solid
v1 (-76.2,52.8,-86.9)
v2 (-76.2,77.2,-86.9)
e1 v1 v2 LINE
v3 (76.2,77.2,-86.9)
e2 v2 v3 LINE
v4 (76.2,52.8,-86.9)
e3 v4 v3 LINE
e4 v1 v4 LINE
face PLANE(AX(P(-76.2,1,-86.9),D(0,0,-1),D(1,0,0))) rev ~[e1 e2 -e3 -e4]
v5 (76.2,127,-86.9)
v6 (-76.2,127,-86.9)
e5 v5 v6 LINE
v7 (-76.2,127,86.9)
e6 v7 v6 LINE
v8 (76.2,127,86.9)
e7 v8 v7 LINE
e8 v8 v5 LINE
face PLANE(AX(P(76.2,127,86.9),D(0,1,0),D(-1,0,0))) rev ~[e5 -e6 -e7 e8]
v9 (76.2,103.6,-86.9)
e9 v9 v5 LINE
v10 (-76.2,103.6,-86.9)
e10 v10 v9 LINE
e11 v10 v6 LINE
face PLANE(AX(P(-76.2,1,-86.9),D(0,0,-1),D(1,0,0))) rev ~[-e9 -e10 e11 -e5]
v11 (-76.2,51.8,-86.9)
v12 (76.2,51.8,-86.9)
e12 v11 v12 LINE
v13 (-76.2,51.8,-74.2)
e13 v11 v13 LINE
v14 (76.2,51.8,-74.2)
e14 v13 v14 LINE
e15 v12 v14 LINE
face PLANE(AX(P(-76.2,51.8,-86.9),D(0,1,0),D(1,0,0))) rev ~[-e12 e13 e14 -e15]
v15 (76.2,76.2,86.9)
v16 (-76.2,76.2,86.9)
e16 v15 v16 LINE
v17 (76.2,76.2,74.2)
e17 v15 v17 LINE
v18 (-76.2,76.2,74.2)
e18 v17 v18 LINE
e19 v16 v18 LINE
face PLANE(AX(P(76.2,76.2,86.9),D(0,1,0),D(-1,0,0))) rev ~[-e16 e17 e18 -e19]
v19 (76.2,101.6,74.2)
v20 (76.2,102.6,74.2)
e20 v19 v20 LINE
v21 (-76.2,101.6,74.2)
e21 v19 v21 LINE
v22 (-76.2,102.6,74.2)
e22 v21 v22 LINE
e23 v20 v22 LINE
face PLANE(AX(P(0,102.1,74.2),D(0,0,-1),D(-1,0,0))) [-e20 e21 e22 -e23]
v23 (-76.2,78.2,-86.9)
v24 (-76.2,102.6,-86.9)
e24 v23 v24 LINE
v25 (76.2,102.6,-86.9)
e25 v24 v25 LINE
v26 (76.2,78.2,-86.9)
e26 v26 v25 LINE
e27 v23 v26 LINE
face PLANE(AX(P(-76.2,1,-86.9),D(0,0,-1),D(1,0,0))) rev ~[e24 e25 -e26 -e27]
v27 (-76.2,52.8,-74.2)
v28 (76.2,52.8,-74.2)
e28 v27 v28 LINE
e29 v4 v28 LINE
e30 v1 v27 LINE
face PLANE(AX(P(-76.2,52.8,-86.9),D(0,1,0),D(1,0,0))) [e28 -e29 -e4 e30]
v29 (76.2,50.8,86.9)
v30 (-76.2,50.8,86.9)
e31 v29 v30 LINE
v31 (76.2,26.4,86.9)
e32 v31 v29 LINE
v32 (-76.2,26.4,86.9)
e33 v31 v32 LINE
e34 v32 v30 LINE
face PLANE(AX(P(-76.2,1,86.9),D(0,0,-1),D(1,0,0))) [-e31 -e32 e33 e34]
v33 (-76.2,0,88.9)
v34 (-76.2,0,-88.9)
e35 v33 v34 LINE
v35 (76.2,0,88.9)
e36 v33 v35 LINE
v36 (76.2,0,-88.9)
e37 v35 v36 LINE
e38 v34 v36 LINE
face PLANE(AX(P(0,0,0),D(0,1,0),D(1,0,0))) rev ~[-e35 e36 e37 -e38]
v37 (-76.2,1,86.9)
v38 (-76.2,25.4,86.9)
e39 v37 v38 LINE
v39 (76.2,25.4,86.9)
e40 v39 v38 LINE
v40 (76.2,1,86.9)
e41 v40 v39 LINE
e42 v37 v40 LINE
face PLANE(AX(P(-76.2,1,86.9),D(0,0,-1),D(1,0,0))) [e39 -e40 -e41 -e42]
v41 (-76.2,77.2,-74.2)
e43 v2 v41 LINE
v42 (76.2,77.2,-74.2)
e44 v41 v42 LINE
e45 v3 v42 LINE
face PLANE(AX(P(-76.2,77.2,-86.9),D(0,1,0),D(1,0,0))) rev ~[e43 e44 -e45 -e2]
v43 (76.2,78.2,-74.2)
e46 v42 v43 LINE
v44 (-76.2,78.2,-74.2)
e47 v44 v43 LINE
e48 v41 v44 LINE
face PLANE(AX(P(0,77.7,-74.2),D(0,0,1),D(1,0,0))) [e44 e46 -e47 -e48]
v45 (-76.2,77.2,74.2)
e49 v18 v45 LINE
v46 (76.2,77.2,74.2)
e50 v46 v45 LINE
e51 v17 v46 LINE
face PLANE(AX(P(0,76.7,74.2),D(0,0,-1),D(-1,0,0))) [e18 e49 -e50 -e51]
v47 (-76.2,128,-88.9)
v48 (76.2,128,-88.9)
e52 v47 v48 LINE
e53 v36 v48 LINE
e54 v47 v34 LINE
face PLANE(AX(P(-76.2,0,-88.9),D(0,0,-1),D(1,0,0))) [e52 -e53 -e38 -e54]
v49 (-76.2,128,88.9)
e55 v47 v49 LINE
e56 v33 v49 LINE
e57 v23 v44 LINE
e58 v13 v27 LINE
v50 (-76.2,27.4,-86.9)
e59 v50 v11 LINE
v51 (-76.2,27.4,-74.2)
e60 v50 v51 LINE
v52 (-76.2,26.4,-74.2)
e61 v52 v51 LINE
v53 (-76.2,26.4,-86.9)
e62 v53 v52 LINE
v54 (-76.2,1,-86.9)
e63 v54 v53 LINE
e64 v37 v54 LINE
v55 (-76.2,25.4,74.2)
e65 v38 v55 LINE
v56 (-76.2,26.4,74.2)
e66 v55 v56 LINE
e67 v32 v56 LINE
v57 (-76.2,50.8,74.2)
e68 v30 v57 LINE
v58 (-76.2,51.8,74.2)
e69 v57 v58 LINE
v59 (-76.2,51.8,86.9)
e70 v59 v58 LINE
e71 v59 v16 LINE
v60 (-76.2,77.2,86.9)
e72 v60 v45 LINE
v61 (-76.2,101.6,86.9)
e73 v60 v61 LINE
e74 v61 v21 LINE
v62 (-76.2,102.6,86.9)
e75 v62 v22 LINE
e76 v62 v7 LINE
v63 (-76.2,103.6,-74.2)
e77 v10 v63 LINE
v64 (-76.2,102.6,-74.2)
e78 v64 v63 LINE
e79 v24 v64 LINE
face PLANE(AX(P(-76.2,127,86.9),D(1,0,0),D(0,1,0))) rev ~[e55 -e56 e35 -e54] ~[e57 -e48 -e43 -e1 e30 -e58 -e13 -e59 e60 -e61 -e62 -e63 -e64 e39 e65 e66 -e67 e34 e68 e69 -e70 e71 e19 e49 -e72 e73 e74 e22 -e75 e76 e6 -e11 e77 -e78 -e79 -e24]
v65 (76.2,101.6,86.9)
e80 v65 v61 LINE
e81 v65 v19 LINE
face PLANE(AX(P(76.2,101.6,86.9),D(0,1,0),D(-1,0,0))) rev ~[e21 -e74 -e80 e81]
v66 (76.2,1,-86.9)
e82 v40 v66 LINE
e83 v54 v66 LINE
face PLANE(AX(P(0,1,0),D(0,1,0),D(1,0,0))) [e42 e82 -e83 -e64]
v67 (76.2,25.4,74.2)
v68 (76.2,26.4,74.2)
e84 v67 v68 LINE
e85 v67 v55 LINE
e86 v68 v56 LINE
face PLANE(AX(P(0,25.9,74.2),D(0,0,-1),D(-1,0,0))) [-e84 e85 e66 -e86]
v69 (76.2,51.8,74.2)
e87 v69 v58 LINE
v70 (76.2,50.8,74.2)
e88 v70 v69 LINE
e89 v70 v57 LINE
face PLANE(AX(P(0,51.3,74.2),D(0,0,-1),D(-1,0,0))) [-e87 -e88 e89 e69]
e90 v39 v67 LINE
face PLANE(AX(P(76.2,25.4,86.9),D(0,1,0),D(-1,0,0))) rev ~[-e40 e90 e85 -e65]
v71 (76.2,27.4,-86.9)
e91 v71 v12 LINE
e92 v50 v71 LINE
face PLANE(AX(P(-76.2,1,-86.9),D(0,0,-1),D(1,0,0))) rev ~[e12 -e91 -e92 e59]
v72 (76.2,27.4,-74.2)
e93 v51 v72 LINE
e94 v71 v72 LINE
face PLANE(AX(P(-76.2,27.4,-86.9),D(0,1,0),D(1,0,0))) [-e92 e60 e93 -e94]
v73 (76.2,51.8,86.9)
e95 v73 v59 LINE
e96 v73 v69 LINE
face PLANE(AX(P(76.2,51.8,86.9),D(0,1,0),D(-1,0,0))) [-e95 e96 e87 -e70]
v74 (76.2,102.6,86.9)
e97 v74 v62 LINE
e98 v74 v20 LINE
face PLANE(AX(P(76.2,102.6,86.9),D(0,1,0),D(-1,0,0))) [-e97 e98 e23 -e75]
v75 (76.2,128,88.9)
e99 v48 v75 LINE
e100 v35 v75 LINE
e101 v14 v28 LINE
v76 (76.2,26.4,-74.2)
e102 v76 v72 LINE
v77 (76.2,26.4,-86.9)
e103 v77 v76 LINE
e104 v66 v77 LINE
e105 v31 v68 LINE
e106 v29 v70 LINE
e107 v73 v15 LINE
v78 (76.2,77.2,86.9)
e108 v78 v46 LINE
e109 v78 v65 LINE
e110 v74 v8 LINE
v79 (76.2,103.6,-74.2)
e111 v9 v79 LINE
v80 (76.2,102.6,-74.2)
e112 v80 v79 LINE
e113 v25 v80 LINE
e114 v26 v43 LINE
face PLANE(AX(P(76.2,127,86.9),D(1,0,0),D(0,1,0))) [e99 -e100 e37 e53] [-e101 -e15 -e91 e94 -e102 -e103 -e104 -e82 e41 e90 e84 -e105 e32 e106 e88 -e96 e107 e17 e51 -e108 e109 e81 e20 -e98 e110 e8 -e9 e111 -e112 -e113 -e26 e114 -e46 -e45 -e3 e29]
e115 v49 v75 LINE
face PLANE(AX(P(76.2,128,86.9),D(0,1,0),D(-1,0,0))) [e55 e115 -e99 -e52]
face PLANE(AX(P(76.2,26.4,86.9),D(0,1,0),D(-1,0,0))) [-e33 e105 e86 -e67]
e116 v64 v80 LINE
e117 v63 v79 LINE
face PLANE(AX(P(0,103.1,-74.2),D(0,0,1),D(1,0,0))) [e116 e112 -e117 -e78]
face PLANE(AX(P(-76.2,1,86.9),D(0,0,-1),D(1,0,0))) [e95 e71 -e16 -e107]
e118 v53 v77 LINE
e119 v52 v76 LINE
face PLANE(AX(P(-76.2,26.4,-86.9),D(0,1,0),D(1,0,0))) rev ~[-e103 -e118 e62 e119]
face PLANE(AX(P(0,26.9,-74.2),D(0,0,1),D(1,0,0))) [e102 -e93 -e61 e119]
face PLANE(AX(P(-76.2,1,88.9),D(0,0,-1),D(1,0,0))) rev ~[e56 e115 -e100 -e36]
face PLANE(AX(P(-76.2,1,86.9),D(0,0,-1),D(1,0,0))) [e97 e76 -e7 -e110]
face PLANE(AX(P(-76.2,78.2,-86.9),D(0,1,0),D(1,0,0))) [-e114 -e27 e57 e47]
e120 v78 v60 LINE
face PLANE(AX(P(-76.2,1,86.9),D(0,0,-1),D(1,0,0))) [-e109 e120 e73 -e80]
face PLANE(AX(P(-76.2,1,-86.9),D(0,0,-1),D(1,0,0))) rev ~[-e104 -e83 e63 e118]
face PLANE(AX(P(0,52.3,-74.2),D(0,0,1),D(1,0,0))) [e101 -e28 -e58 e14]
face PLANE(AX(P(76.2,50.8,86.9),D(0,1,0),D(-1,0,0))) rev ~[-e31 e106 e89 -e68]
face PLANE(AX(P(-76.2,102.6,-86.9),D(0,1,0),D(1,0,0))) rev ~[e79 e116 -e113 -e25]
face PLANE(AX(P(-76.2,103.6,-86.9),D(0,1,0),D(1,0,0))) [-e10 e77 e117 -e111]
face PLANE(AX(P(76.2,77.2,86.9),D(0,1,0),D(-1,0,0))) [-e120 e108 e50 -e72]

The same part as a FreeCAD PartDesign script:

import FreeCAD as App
import Part
import Sketcher
Q = App.Units.Quantity


def add_polygon(sketch, points):
    """Adds a closed chain of lines whose ends are joined by coincident constraints."""
    first, n = sketch.GeometryCount, len(points)
    for a, b in zip(points, points[1:] + points[:1]):
        sketch.addGeometry(Part.LineSegment(App.Vector(*a, 0), App.Vector(*b, 0)), False)
    for i in range(n):
        sketch.addConstraint(Sketcher.Constraint("Coincident", first + i, 2, first + (i + 1) % n, 1))

doc = App.newDocument("Part")
body = doc.addObject("PartDesign::Body", "Body")

sketch1 = doc.addObject("Sketcher::SketchObject", "Sketch")
body.addObject(sketch1)
sketch1.AttachmentSupport = (doc.XZ_Plane, [""])
sketch1.MapMode = "FlatFace"
add_polygon(sketch1, [(-76.2, -88.9), (-76.2, 88.9), (76.2, 88.9), (76.2, -88.9)])
sketch1.addConstraint(Sketcher.Constraint("Vertical", 0))
sketch1.addConstraint(Sketcher.Constraint("Horizontal", 1))
sketch1.addConstraint(Sketcher.Constraint("Vertical", 2))
sketch1.addConstraint(Sketcher.Constraint("Horizontal", 3))
sketch1.addConstraint(Sketcher.Constraint("Symmetric", 0, 2, 2, 2, -1, 1))
sketch1.addConstraint(Sketcher.Constraint("DistanceX", 1, 1, 1, 2, Q("6 in")))
sketch1.addConstraint(Sketcher.Constraint("DistanceY", 0, 1, 0, 2, Q("7 in")))
pad1 = doc.addObject("PartDesign::Pad", "Pad")
body.addObject(pad1)
pad1.Profile = sketch1
pad1.Length = 1
pad1.Reversed = True

sketch2 = doc.addObject("Sketcher::SketchObject", "Sketch001")
body.addObject(sketch2)
sketch2.AttachmentSupport = (doc.XZ_Plane, [""])
sketch2.MapMode = "FlatFace"
sketch2.AttachmentOffset = App.Placement(App.Vector(0, 0, -1), App.Rotation())
add_polygon(sketch2, [(-76.2, 86.9), (-76.2, 88.9), (76.2, 88.9), (76.2, 86.9)])
add_polygon(sketch2, [(-76.2, -88.9), (-76.2, -86.9), (76.2, -86.9), (76.2, -88.9)])
sketch2.addConstraint(Sketcher.Constraint("Vertical", 0))
sketch2.addConstraint(Sketcher.Constraint("Horizontal", 1))
sketch2.addConstraint(Sketcher.Constraint("Vertical", 2))
sketch2.addConstraint(Sketcher.Constraint("Horizontal", 3))
sketch2.addConstraint(Sketcher.Constraint("Vertical", 4))
sketch2.addConstraint(Sketcher.Constraint("Horizontal", 5))
sketch2.addConstraint(Sketcher.Constraint("Vertical", 6))
sketch2.addConstraint(Sketcher.Constraint("Horizontal", 7))
sketch2.addConstraint(Sketcher.Constraint("Symmetric", 2, 2, 4, 2, -1, 1))
sketch2.addConstraint(Sketcher.Constraint("Symmetric", 0, 2, 6, 2, -1, 1))
sketch2.addConstraint(Sketcher.Constraint("Vertical", 3, 2, 4, 2))
sketch2.addConstraint(Sketcher.Constraint("DistanceX", 1, 1, 1, 2, Q("6 in")))
sketch2.addConstraint(Sketcher.Constraint("DistanceY", 6, 2, 1, 2, Q("7 in")))
sketch2.addConstraint(Sketcher.Constraint("DistanceY", 0, 1, 0, 2, 2.0))
pad2 = doc.addObject("PartDesign::Pad", "Pad001")
body.addObject(pad2)
pad2.Profile = sketch2
pad2.Length = Q("5 in")
pad2.Reversed = True

sketch3 = doc.addObject("Sketcher::SketchObject", "Sketch002")
body.addObject(sketch3)
sketch3.AttachmentSupport = (doc.XY_Plane, [""])
sketch3.MapMode = "FlatFace"
sketch3.AttachmentOffset = App.Placement(App.Vector(0, 0, 86.9), App.Rotation())
add_polygon(sketch3, [(76.2, 26.4), (76.2, 25.4), (-76.2, 25.4), (-76.2, 26.4)])
add_polygon(sketch3, [(76.2, 51.8), (76.2, 50.8), (-76.2, 50.8), (-76.2, 51.8)])
add_polygon(sketch3, [(76.2, 77.2), (76.2, 76.2), (-76.2, 76.2), (-76.2, 77.2)])
add_polygon(sketch3, [(76.2, 102.6), (76.2, 101.6), (-76.2, 101.6), (-76.2, 102.6)])
sketch3.addConstraint(Sketcher.Constraint("Vertical", 0))
sketch3.addConstraint(Sketcher.Constraint("Horizontal", 1))
sketch3.addConstraint(Sketcher.Constraint("Vertical", 2))
sketch3.addConstraint(Sketcher.Constraint("Horizontal", 3))
sketch3.addConstraint(Sketcher.Constraint("Vertical", 4))
sketch3.addConstraint(Sketcher.Constraint("Horizontal", 5))
sketch3.addConstraint(Sketcher.Constraint("Vertical", 6))
sketch3.addConstraint(Sketcher.Constraint("Horizontal", 7))
sketch3.addConstraint(Sketcher.Constraint("Vertical", 8))
sketch3.addConstraint(Sketcher.Constraint("Horizontal", 9))
sketch3.addConstraint(Sketcher.Constraint("Vertical", 10))
sketch3.addConstraint(Sketcher.Constraint("Horizontal", 11))
sketch3.addConstraint(Sketcher.Constraint("Vertical", 12))
sketch3.addConstraint(Sketcher.Constraint("Horizontal", 13))
sketch3.addConstraint(Sketcher.Constraint("Vertical", 14))
sketch3.addConstraint(Sketcher.Constraint("Horizontal", 15))
sketch3.addConstraint(Sketcher.Constraint("Vertical", 3, 2, 4, 2))
sketch3.addConstraint(Sketcher.Constraint("Vertical", 2, 2, 5, 2))
sketch3.addConstraint(Sketcher.Constraint("Vertical", 7, 2, 8, 2))
sketch3.addConstraint(Sketcher.Constraint("Vertical", 6, 2, 9, 2))
sketch3.addConstraint(Sketcher.Constraint("Vertical", 11, 2, 12, 2))
sketch3.addConstraint(Sketcher.Constraint("Vertical", 10, 2, 13, 2))
sketch3.addConstraint(Sketcher.Constraint("Equal", 2, 4))
sketch3.addConstraint(Sketcher.Constraint("Equal", 6, 8))
sketch3.addConstraint(Sketcher.Constraint("Equal", 10, 12))
sketch3.addConstraint(Sketcher.Constraint("DistanceX", 1, 2, 1, 1, Q("6 in")))
sketch3.addConstraint(Sketcher.Constraint("DistanceX", -1, 1, 0, 2, Q("3 in")))
sketch3.addConstraint(Sketcher.Constraint("DistanceY", -1, 1, 0, 2, Q("1 in")))
sketch3.addConstraint(Sketcher.Constraint("DistanceY", -1, 1, 4, 2, Q("2 in")))
sketch3.addConstraint(Sketcher.Constraint("DistanceY", -1, 1, 8, 2, Q("3 in")))
sketch3.addConstraint(Sketcher.Constraint("DistanceY", -1, 1, 12, 2, Q("4 in")))
sketch3.addConstraint(Sketcher.Constraint("DistanceY", 0, 2, 0, 1, 1.0))
pad3 = doc.addObject("PartDesign::Pad", "Pad002")
body.addObject(pad3)
pad3.Profile = sketch3
pad3.Length = Q("0.5 in")
pad3.Reversed = True

sketch4 = doc.addObject("Sketcher::SketchObject", "Sketch003")
body.addObject(sketch4)
sketch4.AttachmentSupport = (doc.XY_Plane, [""])
sketch4.MapMode = "FlatFace"
sketch4.AttachmentOffset = App.Placement(App.Vector(0, 0, -86.9), App.Rotation())
add_polygon(sketch4, [(-76.2, 27.4), (-76.2, 26.4), (76.2, 26.4), (76.2, 27.4)])
add_polygon(sketch4, [(-76.2, 52.8), (-76.2, 51.8), (76.2, 51.8), (76.2, 52.8)])
add_polygon(sketch4, [(-76.2, 78.2), (-76.2, 77.2), (76.2, 77.2), (76.2, 78.2)])
add_polygon(sketch4, [(-76.2, 103.6), (-76.2, 102.6), (76.2, 102.6), (76.2, 103.6)])
sketch4.addConstraint(Sketcher.Constraint("Vertical", 0))
sketch4.addConstraint(Sketcher.Constraint("Horizontal", 1))
sketch4.addConstraint(Sketcher.Constraint("Vertical", 2))
sketch4.addConstraint(Sketcher.Constraint("Horizontal", 3))
sketch4.addConstraint(Sketcher.Constraint("Vertical", 4))
sketch4.addConstraint(Sketcher.Constraint("Horizontal", 5))
sketch4.addConstraint(Sketcher.Constraint("Vertical", 6))
sketch4.addConstraint(Sketcher.Constraint("Horizontal", 7))
sketch4.addConstraint(Sketcher.Constraint("Vertical", 8))
sketch4.addConstraint(Sketcher.Constraint("Horizontal", 9))
sketch4.addConstraint(Sketcher.Constraint("Vertical", 10))
sketch4.addConstraint(Sketcher.Constraint("Horizontal", 11))
sketch4.addConstraint(Sketcher.Constraint("Vertical", 12))
sketch4.addConstraint(Sketcher.Constraint("Horizontal", 13))
sketch4.addConstraint(Sketcher.Constraint("Vertical", 14))
sketch4.addConstraint(Sketcher.Constraint("Horizontal", 15))
sketch4.addConstraint(Sketcher.Constraint("Vertical", 3, 2, 4, 2))
sketch4.addConstraint(Sketcher.Constraint("Vertical", 2, 2, 5, 2))
sketch4.addConstraint(Sketcher.Constraint("Vertical", 7, 2, 8, 2))
sketch4.addConstraint(Sketcher.Constraint("Vertical", 6, 2, 9, 2))
sketch4.addConstraint(Sketcher.Constraint("Vertical", 11, 2, 12, 2))
sketch4.addConstraint(Sketcher.Constraint("Vertical", 10, 2, 13, 2))
sketch4.addConstraint(Sketcher.Constraint("Equal", 2, 4))
sketch4.addConstraint(Sketcher.Constraint("Equal", 6, 8))
sketch4.addConstraint(Sketcher.Constraint("Equal", 10, 12))
sketch4.addConstraint(Sketcher.Constraint("DistanceX", 1, 1, 1, 2, Q("6 in")))
sketch4.addConstraint(Sketcher.Constraint("DistanceX", 0, 2, -1, 1, Q("3 in")))
sketch4.addConstraint(Sketcher.Constraint("DistanceY", 0, 2, 4, 2, Q("1 in")))
sketch4.addConstraint(Sketcher.Constraint("DistanceY", 4, 2, 8, 2, Q("1 in")))
sketch4.addConstraint(Sketcher.Constraint("DistanceY", 8, 2, 12, 2, Q("1 in")))
sketch4.addConstraint(Sketcher.Constraint("DistanceY", 0, 2, 0, 1, 1.0))
sketch4.addConstraint(Sketcher.Constraint("DistanceY", -1, 1, 0, 2, 26.4))
pad4 = doc.addObject("PartDesign::Pad", "Pad003")
body.addObject(pad4)
pad4.Profile = sketch4
pad4.Length = Q("0.5 in")

sketch5 = doc.addObject("Sketcher::SketchObject", "Sketch004")
body.addObject(sketch5)
sketch5.AttachmentSupport = (doc.XY_Plane, [""])
sketch5.MapMode = "FlatFace"
sketch5.AttachmentOffset = App.Placement(App.Vector(0, 0, 86.9), App.Rotation())
add_polygon(sketch5, [(76.2, 128), (76.2, 127), (-76.2, 127), (-76.2, 128)])
sketch5.addConstraint(Sketcher.Constraint("Vertical", 0))
sketch5.addConstraint(Sketcher.Constraint("Horizontal", 1))
sketch5.addConstraint(Sketcher.Constraint("Vertical", 2))
sketch5.addConstraint(Sketcher.Constraint("Horizontal", 3))
sketch5.addConstraint(Sketcher.Constraint("DistanceX", 1, 2, 1, 1, Q("6 in")))
sketch5.addConstraint(Sketcher.Constraint("DistanceX", -1, 1, 0, 2, Q("3 in")))
sketch5.addConstraint(Sketcher.Constraint("DistanceY", -1, 1, 0, 2, Q("5 in")))
sketch5.addConstraint(Sketcher.Constraint("DistanceY", 0, 2, 0, 1, 1.0))
pad5 = doc.addObject("PartDesign::Pad", "Pad004")
body.addObject(pad5)
pad5.Profile = sketch5
pad5.Length = 173.8
pad5.Reversed = True

doc.recompute()
